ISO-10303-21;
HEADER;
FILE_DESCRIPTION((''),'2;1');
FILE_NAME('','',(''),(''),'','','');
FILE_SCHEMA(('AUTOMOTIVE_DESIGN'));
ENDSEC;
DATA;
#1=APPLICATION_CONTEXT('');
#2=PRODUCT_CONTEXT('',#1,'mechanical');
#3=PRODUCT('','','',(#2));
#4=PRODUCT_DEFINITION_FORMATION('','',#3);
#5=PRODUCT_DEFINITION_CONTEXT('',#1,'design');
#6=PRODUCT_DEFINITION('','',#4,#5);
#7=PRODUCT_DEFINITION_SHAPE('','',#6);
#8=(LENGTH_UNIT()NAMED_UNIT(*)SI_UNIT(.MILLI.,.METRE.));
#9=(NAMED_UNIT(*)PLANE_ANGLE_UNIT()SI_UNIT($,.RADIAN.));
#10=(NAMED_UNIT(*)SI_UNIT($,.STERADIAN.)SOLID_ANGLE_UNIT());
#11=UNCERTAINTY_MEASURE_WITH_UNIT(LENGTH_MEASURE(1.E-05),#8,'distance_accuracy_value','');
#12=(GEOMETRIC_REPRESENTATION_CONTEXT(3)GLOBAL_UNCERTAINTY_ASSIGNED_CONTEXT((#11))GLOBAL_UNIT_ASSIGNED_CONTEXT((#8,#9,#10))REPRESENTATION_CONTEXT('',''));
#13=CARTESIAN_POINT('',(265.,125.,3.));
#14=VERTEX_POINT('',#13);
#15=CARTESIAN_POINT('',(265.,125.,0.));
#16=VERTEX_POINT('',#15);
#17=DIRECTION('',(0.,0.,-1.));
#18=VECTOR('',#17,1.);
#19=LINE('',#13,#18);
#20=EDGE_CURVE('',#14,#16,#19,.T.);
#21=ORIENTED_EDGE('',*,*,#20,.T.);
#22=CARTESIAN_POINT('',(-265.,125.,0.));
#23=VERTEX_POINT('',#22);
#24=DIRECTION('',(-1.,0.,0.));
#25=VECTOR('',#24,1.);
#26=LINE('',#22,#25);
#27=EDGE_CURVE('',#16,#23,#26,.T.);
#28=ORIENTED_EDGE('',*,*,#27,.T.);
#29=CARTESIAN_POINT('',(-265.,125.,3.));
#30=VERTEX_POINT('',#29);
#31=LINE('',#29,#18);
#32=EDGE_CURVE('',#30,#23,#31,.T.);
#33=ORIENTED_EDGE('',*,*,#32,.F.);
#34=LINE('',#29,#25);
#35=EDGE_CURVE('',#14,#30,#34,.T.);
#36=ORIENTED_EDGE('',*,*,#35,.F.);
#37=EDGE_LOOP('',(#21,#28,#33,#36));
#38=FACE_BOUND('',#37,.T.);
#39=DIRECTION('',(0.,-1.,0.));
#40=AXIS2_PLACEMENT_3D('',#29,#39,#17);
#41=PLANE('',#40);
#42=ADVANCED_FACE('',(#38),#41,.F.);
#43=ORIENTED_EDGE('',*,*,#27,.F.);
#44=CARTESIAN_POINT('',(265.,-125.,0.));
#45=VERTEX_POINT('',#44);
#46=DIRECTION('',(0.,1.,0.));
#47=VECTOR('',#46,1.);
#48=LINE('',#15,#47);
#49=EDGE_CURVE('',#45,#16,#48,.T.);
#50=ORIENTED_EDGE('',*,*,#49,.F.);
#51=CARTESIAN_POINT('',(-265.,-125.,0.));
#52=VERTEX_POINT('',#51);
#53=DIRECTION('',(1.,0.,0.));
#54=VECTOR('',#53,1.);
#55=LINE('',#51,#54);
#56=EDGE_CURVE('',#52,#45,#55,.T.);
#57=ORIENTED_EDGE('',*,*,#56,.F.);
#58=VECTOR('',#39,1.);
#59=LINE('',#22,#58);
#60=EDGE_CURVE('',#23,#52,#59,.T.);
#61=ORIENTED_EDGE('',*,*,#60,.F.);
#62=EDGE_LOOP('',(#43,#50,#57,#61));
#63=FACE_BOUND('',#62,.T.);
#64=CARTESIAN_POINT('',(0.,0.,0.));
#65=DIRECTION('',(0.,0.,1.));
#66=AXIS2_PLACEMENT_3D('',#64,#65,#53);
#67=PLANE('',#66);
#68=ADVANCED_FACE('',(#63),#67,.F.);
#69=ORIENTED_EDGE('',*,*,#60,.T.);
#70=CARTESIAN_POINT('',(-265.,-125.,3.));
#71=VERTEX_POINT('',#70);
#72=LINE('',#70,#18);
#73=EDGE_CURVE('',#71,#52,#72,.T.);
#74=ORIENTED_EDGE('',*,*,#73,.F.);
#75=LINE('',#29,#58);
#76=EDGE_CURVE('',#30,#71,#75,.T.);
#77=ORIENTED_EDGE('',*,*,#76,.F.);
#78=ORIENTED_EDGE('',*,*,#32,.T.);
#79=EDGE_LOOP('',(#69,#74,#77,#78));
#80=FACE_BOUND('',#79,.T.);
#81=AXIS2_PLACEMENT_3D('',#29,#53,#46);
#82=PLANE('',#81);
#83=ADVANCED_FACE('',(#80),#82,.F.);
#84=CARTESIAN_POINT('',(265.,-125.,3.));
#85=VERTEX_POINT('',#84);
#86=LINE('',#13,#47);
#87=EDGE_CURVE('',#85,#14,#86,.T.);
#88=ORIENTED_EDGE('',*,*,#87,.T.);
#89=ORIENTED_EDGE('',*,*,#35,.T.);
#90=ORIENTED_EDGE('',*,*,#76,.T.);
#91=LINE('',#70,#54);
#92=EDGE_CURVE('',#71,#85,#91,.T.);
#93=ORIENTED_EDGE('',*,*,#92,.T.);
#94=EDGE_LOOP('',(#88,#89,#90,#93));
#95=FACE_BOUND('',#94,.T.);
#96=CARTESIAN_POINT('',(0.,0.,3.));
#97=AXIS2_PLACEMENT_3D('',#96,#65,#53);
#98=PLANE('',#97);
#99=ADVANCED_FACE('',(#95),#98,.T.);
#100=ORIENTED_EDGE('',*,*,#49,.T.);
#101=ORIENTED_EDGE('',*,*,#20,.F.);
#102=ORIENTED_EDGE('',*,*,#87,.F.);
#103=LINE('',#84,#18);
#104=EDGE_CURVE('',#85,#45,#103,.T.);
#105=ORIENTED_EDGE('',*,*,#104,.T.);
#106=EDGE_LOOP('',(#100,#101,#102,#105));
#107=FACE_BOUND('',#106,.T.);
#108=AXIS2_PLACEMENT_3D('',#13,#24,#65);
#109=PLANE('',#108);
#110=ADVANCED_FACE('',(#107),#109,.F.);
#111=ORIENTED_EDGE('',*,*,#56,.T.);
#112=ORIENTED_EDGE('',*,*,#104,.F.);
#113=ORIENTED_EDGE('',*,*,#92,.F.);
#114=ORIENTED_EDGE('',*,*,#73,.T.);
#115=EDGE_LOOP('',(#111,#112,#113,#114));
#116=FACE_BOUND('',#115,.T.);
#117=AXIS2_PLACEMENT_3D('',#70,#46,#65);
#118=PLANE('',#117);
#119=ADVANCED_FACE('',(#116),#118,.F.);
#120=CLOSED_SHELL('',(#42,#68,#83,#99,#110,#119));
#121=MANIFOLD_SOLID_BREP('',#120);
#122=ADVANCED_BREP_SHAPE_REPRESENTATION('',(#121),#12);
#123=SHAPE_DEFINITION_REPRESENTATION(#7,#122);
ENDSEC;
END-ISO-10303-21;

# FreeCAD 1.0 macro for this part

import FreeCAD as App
import Part
import Sketcher
Q = App.Units.Quantity


def add_polygon(sketch, points):
    """Adds a closed chain of lines whose ends are joined by coincident constraints."""
    first, n = sketch.GeometryCount, len(points)
    for a, b in zip(points, points[1:] + points[:1]):
        sketch.addGeometry(Part.LineSegment(App.Vector(*a, 0), App.Vector(*b, 0)), False)
    for i in range(n):
        sketch.addConstraint(Sketcher.Constraint("Coincident", first + i, 2, first + (i + 1) % n, 1))

doc = App.newDocument("Part")
body = doc.addObject("PartDesign::Body", "Body")

sketch1 = doc.addObject("Sketcher::SketchObject", "Sketch")
body.addObject(sketch1)
sketch1.AttachmentSupport = (doc.XY_Plane, [""])
sketch1.MapMode = "FlatFace"
add_polygon(sketch1, [(-265, 125), (-265, -125), (265, -125), (265, 125)])
sketch1.addConstraint([
    Sketcher.Constraint("Vertical", 0),
    Sketcher.Constraint("Horizontal", 1),
    Sketcher.Constraint("Vertical", 2),
    Sketcher.Constraint("Horizontal", 3),
    Sketcher.Constraint("Symmetric", 0, 2, 2, 2, -1, 1),
    Sketcher.Constraint("DistanceX", 1, 1, 1, 2, Q("530 mm")),
    Sketcher.Constraint("DistanceY", 0, 2, 0, 1, Q("250 mm")),
])
pad1 = doc.addObject("PartDesign::Pad", "Pad")
body.addObject(pad1)
pad1.Profile = sketch1
pad1.Length = 3

doc.recompute()
